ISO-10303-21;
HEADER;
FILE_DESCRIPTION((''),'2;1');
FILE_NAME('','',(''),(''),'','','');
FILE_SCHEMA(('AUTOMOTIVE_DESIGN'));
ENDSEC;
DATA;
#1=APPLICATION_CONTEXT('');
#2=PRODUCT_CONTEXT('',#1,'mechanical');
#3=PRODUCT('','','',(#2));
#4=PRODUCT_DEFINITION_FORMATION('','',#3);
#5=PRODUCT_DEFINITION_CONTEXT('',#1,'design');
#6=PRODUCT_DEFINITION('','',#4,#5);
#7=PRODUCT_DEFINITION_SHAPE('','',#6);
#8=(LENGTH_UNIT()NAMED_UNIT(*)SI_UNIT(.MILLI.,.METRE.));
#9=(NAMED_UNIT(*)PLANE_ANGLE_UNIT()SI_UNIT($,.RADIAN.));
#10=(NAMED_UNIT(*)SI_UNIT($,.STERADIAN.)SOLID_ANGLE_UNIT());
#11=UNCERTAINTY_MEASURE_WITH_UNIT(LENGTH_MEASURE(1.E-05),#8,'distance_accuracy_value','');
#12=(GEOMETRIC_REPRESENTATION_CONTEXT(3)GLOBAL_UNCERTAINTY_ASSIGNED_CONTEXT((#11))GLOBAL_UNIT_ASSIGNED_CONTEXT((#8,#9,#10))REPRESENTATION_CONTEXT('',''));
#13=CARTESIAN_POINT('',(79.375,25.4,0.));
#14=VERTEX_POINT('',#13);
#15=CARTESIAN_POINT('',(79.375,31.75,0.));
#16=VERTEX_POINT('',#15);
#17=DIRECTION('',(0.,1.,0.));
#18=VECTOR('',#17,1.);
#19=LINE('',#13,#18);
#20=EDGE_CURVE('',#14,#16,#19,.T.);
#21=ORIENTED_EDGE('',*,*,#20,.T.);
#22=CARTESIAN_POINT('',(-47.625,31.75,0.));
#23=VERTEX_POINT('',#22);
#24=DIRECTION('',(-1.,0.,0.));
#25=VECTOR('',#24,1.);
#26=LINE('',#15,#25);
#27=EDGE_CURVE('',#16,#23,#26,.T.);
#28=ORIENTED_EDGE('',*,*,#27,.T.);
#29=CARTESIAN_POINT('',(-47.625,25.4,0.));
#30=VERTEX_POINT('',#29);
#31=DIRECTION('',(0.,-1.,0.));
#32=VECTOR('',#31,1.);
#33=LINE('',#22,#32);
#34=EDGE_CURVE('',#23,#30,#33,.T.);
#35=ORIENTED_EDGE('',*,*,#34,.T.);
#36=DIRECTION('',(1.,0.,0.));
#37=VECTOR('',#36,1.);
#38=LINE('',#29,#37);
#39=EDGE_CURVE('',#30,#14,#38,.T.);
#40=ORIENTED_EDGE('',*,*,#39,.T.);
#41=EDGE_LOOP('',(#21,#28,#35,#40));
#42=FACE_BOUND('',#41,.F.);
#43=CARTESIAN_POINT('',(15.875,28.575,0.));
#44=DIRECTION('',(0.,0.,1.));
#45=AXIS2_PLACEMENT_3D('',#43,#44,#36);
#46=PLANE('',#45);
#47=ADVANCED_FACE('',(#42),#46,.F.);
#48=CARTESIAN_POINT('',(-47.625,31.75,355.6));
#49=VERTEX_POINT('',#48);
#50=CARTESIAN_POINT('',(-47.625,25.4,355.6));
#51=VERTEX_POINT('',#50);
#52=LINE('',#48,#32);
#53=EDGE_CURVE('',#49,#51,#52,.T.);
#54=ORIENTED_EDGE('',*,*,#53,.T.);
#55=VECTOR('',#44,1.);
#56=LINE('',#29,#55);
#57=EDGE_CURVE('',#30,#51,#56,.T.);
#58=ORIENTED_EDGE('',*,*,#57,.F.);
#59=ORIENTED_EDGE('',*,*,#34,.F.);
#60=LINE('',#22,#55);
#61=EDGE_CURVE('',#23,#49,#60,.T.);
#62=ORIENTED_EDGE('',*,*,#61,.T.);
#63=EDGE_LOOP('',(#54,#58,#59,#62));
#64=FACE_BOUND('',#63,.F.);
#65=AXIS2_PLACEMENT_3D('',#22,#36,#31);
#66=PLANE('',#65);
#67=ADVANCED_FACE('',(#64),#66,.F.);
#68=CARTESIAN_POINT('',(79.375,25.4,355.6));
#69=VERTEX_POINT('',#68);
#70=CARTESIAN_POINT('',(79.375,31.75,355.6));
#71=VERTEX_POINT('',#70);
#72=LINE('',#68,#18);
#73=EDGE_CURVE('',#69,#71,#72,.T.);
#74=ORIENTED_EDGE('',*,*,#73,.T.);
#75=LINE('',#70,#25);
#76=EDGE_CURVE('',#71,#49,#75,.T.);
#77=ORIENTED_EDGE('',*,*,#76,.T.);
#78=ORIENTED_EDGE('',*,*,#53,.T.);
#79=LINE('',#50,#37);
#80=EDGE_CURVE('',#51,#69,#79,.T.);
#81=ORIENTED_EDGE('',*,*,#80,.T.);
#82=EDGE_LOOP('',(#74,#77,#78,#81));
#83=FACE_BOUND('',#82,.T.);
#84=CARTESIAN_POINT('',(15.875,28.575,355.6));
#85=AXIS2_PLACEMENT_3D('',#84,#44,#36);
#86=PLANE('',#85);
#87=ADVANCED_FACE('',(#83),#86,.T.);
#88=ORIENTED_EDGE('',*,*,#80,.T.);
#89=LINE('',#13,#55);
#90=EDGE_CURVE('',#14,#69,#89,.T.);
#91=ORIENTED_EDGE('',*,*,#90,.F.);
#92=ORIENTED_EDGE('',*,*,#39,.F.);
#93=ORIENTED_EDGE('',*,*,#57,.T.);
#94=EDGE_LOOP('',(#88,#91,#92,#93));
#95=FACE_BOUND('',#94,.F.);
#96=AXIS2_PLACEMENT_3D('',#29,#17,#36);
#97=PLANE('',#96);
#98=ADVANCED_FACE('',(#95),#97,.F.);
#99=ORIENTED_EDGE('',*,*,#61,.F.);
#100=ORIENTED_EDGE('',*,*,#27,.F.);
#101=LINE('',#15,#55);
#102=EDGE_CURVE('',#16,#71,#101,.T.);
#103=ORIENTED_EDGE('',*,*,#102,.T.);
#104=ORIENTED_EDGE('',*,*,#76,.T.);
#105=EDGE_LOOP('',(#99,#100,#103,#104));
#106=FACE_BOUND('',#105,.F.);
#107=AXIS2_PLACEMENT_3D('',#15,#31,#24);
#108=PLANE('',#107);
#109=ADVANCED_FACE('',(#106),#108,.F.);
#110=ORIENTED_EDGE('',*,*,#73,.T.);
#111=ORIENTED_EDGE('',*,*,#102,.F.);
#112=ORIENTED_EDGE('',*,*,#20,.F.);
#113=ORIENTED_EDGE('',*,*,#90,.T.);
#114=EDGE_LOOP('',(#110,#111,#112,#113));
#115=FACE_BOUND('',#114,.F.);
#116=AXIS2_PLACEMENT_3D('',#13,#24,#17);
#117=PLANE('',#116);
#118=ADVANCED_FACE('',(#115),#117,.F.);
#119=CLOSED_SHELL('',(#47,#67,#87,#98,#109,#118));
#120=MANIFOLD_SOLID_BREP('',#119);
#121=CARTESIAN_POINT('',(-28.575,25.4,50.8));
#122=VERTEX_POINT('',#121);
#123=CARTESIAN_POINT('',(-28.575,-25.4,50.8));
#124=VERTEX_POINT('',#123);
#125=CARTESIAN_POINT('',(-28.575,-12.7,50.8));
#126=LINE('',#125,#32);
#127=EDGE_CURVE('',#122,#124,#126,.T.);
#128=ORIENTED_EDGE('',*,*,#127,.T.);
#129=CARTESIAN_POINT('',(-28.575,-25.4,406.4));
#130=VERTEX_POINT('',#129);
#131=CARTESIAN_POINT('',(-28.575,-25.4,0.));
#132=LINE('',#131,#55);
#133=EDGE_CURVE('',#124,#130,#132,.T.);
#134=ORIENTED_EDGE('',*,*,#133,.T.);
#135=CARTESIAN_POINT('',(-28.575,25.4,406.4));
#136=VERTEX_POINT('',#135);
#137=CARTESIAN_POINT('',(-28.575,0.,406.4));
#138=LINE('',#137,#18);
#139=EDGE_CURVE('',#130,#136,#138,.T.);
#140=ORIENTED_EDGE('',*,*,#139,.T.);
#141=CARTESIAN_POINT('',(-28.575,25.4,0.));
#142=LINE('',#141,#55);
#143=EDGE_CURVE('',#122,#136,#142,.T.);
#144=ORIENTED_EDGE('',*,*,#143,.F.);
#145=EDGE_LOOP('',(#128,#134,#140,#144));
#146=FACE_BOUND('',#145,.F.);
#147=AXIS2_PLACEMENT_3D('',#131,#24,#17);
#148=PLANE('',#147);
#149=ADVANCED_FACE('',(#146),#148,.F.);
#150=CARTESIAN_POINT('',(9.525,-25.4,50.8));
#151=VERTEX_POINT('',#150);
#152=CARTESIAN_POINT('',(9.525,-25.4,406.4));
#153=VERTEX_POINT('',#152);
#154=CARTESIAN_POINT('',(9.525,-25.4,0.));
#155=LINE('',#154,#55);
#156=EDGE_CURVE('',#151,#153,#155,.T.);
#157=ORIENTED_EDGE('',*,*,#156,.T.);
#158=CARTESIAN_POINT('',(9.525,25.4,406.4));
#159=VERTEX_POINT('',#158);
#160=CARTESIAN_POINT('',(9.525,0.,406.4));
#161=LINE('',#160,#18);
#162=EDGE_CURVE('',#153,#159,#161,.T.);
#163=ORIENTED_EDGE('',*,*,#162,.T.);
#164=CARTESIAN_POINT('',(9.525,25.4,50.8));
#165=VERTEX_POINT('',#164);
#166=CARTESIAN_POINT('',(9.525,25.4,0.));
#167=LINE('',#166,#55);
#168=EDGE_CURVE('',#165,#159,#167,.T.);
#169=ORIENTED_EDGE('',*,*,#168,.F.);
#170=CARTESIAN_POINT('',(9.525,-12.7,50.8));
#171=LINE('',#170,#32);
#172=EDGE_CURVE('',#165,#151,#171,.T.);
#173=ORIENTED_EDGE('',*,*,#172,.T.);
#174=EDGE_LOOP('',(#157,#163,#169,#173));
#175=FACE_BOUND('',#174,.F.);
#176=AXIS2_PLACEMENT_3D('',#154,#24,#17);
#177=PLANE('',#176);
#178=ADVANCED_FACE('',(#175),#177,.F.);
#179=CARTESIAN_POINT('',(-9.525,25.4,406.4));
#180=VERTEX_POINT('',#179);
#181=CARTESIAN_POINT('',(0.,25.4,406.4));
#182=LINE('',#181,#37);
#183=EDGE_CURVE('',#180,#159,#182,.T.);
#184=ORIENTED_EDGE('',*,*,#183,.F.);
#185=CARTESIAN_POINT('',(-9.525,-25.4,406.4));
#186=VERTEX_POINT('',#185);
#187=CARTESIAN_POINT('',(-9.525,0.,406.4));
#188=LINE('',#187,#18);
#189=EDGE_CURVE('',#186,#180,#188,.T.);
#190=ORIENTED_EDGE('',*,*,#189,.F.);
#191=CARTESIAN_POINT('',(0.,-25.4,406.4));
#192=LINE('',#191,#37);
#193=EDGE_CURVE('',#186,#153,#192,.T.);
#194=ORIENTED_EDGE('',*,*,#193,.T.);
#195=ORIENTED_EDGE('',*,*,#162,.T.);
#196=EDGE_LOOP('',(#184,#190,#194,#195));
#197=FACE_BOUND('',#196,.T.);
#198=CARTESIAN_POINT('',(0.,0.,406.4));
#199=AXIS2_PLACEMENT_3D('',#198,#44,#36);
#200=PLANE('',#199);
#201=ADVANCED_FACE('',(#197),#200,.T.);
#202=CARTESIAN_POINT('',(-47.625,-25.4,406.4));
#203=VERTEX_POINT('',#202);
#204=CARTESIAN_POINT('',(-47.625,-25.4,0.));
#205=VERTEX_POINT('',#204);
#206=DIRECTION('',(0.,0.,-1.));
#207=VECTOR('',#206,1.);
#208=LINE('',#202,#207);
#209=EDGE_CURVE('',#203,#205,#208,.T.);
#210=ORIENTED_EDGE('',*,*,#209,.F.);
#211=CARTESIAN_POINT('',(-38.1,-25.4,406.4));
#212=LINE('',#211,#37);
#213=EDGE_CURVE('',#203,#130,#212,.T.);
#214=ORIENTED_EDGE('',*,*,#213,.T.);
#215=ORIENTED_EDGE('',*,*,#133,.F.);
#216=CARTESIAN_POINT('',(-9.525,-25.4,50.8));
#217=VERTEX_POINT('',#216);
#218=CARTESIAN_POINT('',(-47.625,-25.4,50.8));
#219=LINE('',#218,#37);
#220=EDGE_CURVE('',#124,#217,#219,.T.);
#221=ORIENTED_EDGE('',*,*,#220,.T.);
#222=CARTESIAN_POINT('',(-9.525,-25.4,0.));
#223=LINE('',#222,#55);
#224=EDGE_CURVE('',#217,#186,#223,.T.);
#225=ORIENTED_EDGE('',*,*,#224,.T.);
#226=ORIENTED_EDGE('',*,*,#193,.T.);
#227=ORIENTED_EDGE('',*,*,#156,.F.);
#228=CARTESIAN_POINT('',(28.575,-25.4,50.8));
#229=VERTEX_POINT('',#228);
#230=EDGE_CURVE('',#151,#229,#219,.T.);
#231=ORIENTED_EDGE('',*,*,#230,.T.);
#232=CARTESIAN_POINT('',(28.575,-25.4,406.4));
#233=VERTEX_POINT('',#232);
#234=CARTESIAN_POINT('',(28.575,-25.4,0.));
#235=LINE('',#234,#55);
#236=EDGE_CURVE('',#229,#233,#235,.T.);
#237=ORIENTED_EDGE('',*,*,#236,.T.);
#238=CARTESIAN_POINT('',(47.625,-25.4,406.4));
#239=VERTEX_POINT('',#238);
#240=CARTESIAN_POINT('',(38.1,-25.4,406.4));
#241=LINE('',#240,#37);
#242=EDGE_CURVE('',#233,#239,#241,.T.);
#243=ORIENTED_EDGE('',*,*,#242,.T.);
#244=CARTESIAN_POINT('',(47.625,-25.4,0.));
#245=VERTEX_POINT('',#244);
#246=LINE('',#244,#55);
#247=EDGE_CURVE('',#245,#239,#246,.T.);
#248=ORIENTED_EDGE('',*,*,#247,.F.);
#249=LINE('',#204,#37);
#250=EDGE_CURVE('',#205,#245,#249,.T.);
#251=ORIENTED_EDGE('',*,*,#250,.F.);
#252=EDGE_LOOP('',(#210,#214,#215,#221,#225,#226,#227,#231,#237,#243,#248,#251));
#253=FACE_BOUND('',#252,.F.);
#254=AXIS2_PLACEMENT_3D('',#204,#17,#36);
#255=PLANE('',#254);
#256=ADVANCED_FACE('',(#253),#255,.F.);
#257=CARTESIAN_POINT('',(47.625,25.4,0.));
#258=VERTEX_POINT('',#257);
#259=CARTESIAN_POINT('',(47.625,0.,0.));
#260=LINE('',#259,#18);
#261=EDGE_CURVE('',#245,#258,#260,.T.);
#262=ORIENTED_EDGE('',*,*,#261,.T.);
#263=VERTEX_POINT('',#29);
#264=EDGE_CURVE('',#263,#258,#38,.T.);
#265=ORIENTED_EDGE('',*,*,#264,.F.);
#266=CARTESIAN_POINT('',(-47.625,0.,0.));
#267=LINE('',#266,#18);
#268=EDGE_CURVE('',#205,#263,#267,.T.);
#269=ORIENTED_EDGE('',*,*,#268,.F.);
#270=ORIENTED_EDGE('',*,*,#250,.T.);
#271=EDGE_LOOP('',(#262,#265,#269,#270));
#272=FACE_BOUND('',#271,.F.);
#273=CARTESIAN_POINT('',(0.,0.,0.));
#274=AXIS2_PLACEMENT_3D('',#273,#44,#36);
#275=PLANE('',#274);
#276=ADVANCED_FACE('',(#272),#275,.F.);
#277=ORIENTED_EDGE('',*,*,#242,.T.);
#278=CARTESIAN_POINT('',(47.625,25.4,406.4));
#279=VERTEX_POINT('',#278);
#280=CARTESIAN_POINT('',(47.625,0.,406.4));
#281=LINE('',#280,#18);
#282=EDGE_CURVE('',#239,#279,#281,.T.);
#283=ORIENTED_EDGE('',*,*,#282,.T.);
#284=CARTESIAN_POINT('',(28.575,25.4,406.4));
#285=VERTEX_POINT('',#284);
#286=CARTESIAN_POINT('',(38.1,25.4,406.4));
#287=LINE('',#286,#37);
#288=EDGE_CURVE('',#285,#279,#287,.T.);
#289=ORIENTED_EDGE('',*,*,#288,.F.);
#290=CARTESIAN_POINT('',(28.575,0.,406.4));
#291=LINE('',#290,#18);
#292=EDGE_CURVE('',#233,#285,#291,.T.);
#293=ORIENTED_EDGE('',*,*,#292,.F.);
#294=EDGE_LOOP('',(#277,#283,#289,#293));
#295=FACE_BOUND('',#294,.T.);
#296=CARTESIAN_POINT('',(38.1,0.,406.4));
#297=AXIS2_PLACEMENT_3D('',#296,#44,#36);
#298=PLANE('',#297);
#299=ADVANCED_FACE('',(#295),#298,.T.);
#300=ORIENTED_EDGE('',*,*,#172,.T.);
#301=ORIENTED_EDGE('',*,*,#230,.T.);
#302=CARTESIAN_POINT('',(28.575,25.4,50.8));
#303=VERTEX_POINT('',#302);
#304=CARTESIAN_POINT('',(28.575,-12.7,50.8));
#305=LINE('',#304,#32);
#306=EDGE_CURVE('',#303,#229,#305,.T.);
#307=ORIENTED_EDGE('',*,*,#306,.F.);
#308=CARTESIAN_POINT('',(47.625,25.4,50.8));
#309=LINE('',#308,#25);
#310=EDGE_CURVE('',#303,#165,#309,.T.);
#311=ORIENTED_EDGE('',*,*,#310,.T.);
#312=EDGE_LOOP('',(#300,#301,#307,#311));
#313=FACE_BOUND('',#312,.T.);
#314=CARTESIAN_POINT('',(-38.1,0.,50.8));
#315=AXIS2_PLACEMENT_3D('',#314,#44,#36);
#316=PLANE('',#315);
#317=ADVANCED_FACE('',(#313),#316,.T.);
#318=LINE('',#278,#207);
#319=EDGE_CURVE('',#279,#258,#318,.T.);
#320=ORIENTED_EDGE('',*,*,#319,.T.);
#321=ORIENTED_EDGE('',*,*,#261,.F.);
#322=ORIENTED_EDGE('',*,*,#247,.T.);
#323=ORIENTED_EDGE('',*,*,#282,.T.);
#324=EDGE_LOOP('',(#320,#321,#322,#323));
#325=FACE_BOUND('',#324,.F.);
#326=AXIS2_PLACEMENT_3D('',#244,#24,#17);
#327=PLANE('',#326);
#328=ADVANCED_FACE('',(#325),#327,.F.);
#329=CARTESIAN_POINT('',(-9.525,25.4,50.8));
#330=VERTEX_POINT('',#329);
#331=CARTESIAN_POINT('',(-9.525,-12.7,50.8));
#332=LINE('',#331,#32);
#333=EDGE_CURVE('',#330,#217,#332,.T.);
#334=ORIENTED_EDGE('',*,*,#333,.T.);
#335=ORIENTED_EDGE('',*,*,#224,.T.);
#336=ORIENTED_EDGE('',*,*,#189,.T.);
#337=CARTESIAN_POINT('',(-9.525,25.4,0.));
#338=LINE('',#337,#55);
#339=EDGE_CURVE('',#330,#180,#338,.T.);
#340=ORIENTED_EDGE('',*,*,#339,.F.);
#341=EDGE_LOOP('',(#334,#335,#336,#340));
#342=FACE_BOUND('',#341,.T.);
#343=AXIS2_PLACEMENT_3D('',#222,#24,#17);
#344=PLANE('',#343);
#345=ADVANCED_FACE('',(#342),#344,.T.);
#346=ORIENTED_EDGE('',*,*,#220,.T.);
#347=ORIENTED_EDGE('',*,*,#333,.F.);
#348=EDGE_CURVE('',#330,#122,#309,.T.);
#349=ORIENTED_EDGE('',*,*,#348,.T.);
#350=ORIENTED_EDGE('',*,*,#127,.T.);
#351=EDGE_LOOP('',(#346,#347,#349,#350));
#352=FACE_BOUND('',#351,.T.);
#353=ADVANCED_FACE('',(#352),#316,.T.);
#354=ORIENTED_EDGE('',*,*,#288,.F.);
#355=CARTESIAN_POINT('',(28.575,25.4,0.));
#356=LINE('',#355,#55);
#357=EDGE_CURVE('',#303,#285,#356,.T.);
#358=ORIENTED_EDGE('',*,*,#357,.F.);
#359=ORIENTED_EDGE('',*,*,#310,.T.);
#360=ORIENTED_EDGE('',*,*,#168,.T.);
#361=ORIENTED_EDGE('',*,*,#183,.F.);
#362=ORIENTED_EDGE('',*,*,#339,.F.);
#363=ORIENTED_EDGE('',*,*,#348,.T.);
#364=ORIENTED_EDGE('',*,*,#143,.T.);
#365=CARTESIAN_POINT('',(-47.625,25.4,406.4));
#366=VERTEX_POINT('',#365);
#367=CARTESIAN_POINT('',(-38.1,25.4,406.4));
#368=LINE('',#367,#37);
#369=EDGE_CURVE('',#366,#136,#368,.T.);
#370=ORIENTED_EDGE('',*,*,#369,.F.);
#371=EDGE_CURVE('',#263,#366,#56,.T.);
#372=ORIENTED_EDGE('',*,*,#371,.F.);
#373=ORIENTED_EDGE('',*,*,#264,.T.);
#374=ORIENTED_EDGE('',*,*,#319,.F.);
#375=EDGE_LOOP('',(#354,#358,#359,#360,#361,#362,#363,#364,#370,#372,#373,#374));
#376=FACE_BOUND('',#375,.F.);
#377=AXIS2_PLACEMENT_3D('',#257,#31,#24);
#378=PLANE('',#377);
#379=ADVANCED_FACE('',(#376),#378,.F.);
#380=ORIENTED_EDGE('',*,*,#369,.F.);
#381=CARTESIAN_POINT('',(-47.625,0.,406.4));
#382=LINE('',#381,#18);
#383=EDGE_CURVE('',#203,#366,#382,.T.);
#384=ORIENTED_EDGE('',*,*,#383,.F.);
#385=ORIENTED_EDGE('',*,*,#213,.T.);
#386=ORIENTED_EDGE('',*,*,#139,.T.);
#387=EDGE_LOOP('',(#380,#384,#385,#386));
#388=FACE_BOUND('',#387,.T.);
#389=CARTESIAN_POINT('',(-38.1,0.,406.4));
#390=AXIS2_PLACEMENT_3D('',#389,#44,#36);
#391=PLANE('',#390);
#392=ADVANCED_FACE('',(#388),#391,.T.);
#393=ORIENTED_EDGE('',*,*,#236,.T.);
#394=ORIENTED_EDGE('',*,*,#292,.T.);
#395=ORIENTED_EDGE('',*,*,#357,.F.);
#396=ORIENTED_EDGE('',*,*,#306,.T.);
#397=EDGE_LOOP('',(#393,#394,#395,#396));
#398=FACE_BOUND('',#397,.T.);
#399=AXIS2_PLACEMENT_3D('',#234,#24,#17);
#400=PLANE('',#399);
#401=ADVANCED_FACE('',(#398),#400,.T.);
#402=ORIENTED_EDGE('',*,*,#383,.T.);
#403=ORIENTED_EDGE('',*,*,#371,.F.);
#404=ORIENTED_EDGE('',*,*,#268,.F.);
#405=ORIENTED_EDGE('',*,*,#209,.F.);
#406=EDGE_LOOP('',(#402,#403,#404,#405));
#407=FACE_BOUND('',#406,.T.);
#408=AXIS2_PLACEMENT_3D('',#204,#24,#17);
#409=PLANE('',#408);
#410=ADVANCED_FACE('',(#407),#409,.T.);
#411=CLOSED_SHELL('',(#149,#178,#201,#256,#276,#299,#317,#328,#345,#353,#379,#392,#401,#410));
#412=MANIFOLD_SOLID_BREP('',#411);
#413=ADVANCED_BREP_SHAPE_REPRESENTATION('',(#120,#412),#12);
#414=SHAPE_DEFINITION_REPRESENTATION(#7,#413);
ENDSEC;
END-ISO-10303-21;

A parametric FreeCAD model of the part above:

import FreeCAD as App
import Part
import Sketcher

V = App.Vector
Q = App.Units.Quantity


def add_polygon(sketch, points):
    """Adds a closed chain of lines whose ends are joined by coincident constraints."""
    first, n = sketch.GeometryCount, len(points)
    for a, b in zip(points, points[1:] + points[:1]):
        sketch.addGeometry(Part.LineSegment(App.Vector(*a, 0), App.Vector(*b, 0)), False)
    for i in range(n):
        sketch.addConstraint(Sketcher.Constraint("Coincident", first + i, 2, first + (i + 1) % n, 1))

doc = App.newDocument("Part")
body = doc.addObject("PartDesign::Body", "Body")

# Sketch on XY plane
sketch1 = body.newObject("Sketcher::SketchObject", "Sketch")
sketch1.AttachmentSupport = (doc.getObject("XY_Plane"), [""])
sketch1.MapMode = "FlatFace"
add_polygon(sketch1, [(-48, 25), (-48, -25), (48, -25), (48, 25)])  # lines 0-3
sketch1.addConstraint(Sketcher.Constraint("Vertical", 0))
sketch1.addConstraint(Sketcher.Constraint("Horizontal", 1))
sketch1.addConstraint(Sketcher.Constraint("Vertical", 2))
sketch1.addConstraint(Sketcher.Constraint("Horizontal", 3))
sketch1.addConstraint(Sketcher.Constraint("Symmetric", 0, 2, 2, 2, -1, 1))
sketch1.addConstraint(Sketcher.Constraint("DistanceY", 0, 2, 0, 1, Q("2 in")))
sketch1.addConstraint(Sketcher.Constraint("DistanceX", 1, 1, 1, 2, Q("3.75 in")))
pad1 = body.newObject("PartDesign::Pad", "Pad")
pad1.Profile = sketch1
pad1.Length = Q("2 in")

# Sketch on XY plane
sketch2 = body.newObject("Sketcher::SketchObject", "Sketch001")
sketch2.AttachmentSupport = (doc.getObject("XY_Plane"), [""])
sketch2.MapMode = "FlatFace"
add_polygon(sketch2, [(-10, 25), (-10, -25), (10, -25), (10, 25)])  # lines 0-3
add_polygon(sketch2, [(-48, 25), (-48, -25), (-29, -25), (-29, 25)])  # lines 4-7
add_polygon(sketch2, [(29, 25), (29, -25), (48, -25), (48, 25)])  # lines 8-11
sketch2.addConstraint(Sketcher.Constraint("Vertical", 0))
sketch2.addConstraint(Sketcher.Constraint("Horizontal", 1))
sketch2.addConstraint(Sketcher.Constraint("Vertical", 2))
sketch2.addConstraint(Sketcher.Constraint("Horizontal", 3))
sketch2.addConstraint(Sketcher.Constraint("Vertical", 4))
sketch2.addConstraint(Sketcher.Constraint("Horizontal", 5))
sketch2.addConstraint(Sketcher.Constraint("Vertical", 6))
sketch2.addConstraint(Sketcher.Constraint("Horizontal", 7))
sketch2.addConstraint(Sketcher.Constraint("Vertical", 8))
sketch2.addConstraint(Sketcher.Constraint("Horizontal", 9))
sketch2.addConstraint(Sketcher.Constraint("Vertical", 10))
sketch2.addConstraint(Sketcher.Constraint("Horizontal", 11))
sketch2.addConstraint(Sketcher.Constraint("Symmetric", 0, 2, 2, 2, -1, 1))
sketch2.addConstraint(Sketcher.Constraint("Symmetric", 6, 2, 8, 2, -1, 1))
sketch2.addConstraint(Sketcher.Constraint("Symmetric", 4, 2, 10, 2, -1, 1))
sketch2.addConstraint(Sketcher.Constraint("Horizontal", 1, 2, 4, 2))
sketch2.addConstraint(Sketcher.Constraint("Horizontal", 3, 2, 6, 2))
sketch2.addConstraint(Sketcher.Constraint("Equal", 3, 5))
sketch2.addConstraint(Sketcher.Constraint("DistanceY", 0, 2, 0, 1, Q("2 in")))
sketch2.addConstraint(Sketcher.Constraint("DistanceX", 5, 2, 9, 2, Q("3 in")))
sketch2.addConstraint(Sketcher.Constraint("DistanceX", 1, 1, 1, 2, Q("0.75 in")))
pad2 = body.newObject("PartDesign::Pad", "Pad001")
pad2.Profile = sketch2
pad2.Length = Q("16 in")
body2 = doc.addObject("PartDesign::Body", "Body001")

# Sketch on XY plane
sketch3 = body2.newObject("Sketcher::SketchObject", "Sketch002")
sketch3.AttachmentSupport = (doc.getObject("XY_Plane001"), [""])
sketch3.MapMode = "FlatFace"
add_polygon(sketch3, [(-48, 32), (-48, 25), (79, 25), (79, 32)])  # lines 0-3
sketch3.addConstraint(Sketcher.Constraint("Vertical", 0))
sketch3.addConstraint(Sketcher.Constraint("Horizontal", 1))
sketch3.addConstraint(Sketcher.Constraint("Vertical", 2))
sketch3.addConstraint(Sketcher.Constraint("Horizontal", 3))
sketch3.addConstraint(Sketcher.Constraint("DistanceX", 1, 1, 1, 2, Q("5 in")))
sketch3.addConstraint(Sketcher.Constraint("DistanceY", -1, 1, 0, 2, Q("1 in")))
sketch3.addConstraint(Sketcher.Constraint("DistanceY", 0, 2, 0, 1, Q("0.25 in")))
sketch3.addConstraint(Sketcher.Constraint("DistanceX", 0, 2, -1, 1, Q("1.875 in")))
pad3 = body2.newObject("PartDesign::Pad", "Pad002")
pad3.Profile = sketch3
pad3.Length = Q("14 in")

doc.recompute()
